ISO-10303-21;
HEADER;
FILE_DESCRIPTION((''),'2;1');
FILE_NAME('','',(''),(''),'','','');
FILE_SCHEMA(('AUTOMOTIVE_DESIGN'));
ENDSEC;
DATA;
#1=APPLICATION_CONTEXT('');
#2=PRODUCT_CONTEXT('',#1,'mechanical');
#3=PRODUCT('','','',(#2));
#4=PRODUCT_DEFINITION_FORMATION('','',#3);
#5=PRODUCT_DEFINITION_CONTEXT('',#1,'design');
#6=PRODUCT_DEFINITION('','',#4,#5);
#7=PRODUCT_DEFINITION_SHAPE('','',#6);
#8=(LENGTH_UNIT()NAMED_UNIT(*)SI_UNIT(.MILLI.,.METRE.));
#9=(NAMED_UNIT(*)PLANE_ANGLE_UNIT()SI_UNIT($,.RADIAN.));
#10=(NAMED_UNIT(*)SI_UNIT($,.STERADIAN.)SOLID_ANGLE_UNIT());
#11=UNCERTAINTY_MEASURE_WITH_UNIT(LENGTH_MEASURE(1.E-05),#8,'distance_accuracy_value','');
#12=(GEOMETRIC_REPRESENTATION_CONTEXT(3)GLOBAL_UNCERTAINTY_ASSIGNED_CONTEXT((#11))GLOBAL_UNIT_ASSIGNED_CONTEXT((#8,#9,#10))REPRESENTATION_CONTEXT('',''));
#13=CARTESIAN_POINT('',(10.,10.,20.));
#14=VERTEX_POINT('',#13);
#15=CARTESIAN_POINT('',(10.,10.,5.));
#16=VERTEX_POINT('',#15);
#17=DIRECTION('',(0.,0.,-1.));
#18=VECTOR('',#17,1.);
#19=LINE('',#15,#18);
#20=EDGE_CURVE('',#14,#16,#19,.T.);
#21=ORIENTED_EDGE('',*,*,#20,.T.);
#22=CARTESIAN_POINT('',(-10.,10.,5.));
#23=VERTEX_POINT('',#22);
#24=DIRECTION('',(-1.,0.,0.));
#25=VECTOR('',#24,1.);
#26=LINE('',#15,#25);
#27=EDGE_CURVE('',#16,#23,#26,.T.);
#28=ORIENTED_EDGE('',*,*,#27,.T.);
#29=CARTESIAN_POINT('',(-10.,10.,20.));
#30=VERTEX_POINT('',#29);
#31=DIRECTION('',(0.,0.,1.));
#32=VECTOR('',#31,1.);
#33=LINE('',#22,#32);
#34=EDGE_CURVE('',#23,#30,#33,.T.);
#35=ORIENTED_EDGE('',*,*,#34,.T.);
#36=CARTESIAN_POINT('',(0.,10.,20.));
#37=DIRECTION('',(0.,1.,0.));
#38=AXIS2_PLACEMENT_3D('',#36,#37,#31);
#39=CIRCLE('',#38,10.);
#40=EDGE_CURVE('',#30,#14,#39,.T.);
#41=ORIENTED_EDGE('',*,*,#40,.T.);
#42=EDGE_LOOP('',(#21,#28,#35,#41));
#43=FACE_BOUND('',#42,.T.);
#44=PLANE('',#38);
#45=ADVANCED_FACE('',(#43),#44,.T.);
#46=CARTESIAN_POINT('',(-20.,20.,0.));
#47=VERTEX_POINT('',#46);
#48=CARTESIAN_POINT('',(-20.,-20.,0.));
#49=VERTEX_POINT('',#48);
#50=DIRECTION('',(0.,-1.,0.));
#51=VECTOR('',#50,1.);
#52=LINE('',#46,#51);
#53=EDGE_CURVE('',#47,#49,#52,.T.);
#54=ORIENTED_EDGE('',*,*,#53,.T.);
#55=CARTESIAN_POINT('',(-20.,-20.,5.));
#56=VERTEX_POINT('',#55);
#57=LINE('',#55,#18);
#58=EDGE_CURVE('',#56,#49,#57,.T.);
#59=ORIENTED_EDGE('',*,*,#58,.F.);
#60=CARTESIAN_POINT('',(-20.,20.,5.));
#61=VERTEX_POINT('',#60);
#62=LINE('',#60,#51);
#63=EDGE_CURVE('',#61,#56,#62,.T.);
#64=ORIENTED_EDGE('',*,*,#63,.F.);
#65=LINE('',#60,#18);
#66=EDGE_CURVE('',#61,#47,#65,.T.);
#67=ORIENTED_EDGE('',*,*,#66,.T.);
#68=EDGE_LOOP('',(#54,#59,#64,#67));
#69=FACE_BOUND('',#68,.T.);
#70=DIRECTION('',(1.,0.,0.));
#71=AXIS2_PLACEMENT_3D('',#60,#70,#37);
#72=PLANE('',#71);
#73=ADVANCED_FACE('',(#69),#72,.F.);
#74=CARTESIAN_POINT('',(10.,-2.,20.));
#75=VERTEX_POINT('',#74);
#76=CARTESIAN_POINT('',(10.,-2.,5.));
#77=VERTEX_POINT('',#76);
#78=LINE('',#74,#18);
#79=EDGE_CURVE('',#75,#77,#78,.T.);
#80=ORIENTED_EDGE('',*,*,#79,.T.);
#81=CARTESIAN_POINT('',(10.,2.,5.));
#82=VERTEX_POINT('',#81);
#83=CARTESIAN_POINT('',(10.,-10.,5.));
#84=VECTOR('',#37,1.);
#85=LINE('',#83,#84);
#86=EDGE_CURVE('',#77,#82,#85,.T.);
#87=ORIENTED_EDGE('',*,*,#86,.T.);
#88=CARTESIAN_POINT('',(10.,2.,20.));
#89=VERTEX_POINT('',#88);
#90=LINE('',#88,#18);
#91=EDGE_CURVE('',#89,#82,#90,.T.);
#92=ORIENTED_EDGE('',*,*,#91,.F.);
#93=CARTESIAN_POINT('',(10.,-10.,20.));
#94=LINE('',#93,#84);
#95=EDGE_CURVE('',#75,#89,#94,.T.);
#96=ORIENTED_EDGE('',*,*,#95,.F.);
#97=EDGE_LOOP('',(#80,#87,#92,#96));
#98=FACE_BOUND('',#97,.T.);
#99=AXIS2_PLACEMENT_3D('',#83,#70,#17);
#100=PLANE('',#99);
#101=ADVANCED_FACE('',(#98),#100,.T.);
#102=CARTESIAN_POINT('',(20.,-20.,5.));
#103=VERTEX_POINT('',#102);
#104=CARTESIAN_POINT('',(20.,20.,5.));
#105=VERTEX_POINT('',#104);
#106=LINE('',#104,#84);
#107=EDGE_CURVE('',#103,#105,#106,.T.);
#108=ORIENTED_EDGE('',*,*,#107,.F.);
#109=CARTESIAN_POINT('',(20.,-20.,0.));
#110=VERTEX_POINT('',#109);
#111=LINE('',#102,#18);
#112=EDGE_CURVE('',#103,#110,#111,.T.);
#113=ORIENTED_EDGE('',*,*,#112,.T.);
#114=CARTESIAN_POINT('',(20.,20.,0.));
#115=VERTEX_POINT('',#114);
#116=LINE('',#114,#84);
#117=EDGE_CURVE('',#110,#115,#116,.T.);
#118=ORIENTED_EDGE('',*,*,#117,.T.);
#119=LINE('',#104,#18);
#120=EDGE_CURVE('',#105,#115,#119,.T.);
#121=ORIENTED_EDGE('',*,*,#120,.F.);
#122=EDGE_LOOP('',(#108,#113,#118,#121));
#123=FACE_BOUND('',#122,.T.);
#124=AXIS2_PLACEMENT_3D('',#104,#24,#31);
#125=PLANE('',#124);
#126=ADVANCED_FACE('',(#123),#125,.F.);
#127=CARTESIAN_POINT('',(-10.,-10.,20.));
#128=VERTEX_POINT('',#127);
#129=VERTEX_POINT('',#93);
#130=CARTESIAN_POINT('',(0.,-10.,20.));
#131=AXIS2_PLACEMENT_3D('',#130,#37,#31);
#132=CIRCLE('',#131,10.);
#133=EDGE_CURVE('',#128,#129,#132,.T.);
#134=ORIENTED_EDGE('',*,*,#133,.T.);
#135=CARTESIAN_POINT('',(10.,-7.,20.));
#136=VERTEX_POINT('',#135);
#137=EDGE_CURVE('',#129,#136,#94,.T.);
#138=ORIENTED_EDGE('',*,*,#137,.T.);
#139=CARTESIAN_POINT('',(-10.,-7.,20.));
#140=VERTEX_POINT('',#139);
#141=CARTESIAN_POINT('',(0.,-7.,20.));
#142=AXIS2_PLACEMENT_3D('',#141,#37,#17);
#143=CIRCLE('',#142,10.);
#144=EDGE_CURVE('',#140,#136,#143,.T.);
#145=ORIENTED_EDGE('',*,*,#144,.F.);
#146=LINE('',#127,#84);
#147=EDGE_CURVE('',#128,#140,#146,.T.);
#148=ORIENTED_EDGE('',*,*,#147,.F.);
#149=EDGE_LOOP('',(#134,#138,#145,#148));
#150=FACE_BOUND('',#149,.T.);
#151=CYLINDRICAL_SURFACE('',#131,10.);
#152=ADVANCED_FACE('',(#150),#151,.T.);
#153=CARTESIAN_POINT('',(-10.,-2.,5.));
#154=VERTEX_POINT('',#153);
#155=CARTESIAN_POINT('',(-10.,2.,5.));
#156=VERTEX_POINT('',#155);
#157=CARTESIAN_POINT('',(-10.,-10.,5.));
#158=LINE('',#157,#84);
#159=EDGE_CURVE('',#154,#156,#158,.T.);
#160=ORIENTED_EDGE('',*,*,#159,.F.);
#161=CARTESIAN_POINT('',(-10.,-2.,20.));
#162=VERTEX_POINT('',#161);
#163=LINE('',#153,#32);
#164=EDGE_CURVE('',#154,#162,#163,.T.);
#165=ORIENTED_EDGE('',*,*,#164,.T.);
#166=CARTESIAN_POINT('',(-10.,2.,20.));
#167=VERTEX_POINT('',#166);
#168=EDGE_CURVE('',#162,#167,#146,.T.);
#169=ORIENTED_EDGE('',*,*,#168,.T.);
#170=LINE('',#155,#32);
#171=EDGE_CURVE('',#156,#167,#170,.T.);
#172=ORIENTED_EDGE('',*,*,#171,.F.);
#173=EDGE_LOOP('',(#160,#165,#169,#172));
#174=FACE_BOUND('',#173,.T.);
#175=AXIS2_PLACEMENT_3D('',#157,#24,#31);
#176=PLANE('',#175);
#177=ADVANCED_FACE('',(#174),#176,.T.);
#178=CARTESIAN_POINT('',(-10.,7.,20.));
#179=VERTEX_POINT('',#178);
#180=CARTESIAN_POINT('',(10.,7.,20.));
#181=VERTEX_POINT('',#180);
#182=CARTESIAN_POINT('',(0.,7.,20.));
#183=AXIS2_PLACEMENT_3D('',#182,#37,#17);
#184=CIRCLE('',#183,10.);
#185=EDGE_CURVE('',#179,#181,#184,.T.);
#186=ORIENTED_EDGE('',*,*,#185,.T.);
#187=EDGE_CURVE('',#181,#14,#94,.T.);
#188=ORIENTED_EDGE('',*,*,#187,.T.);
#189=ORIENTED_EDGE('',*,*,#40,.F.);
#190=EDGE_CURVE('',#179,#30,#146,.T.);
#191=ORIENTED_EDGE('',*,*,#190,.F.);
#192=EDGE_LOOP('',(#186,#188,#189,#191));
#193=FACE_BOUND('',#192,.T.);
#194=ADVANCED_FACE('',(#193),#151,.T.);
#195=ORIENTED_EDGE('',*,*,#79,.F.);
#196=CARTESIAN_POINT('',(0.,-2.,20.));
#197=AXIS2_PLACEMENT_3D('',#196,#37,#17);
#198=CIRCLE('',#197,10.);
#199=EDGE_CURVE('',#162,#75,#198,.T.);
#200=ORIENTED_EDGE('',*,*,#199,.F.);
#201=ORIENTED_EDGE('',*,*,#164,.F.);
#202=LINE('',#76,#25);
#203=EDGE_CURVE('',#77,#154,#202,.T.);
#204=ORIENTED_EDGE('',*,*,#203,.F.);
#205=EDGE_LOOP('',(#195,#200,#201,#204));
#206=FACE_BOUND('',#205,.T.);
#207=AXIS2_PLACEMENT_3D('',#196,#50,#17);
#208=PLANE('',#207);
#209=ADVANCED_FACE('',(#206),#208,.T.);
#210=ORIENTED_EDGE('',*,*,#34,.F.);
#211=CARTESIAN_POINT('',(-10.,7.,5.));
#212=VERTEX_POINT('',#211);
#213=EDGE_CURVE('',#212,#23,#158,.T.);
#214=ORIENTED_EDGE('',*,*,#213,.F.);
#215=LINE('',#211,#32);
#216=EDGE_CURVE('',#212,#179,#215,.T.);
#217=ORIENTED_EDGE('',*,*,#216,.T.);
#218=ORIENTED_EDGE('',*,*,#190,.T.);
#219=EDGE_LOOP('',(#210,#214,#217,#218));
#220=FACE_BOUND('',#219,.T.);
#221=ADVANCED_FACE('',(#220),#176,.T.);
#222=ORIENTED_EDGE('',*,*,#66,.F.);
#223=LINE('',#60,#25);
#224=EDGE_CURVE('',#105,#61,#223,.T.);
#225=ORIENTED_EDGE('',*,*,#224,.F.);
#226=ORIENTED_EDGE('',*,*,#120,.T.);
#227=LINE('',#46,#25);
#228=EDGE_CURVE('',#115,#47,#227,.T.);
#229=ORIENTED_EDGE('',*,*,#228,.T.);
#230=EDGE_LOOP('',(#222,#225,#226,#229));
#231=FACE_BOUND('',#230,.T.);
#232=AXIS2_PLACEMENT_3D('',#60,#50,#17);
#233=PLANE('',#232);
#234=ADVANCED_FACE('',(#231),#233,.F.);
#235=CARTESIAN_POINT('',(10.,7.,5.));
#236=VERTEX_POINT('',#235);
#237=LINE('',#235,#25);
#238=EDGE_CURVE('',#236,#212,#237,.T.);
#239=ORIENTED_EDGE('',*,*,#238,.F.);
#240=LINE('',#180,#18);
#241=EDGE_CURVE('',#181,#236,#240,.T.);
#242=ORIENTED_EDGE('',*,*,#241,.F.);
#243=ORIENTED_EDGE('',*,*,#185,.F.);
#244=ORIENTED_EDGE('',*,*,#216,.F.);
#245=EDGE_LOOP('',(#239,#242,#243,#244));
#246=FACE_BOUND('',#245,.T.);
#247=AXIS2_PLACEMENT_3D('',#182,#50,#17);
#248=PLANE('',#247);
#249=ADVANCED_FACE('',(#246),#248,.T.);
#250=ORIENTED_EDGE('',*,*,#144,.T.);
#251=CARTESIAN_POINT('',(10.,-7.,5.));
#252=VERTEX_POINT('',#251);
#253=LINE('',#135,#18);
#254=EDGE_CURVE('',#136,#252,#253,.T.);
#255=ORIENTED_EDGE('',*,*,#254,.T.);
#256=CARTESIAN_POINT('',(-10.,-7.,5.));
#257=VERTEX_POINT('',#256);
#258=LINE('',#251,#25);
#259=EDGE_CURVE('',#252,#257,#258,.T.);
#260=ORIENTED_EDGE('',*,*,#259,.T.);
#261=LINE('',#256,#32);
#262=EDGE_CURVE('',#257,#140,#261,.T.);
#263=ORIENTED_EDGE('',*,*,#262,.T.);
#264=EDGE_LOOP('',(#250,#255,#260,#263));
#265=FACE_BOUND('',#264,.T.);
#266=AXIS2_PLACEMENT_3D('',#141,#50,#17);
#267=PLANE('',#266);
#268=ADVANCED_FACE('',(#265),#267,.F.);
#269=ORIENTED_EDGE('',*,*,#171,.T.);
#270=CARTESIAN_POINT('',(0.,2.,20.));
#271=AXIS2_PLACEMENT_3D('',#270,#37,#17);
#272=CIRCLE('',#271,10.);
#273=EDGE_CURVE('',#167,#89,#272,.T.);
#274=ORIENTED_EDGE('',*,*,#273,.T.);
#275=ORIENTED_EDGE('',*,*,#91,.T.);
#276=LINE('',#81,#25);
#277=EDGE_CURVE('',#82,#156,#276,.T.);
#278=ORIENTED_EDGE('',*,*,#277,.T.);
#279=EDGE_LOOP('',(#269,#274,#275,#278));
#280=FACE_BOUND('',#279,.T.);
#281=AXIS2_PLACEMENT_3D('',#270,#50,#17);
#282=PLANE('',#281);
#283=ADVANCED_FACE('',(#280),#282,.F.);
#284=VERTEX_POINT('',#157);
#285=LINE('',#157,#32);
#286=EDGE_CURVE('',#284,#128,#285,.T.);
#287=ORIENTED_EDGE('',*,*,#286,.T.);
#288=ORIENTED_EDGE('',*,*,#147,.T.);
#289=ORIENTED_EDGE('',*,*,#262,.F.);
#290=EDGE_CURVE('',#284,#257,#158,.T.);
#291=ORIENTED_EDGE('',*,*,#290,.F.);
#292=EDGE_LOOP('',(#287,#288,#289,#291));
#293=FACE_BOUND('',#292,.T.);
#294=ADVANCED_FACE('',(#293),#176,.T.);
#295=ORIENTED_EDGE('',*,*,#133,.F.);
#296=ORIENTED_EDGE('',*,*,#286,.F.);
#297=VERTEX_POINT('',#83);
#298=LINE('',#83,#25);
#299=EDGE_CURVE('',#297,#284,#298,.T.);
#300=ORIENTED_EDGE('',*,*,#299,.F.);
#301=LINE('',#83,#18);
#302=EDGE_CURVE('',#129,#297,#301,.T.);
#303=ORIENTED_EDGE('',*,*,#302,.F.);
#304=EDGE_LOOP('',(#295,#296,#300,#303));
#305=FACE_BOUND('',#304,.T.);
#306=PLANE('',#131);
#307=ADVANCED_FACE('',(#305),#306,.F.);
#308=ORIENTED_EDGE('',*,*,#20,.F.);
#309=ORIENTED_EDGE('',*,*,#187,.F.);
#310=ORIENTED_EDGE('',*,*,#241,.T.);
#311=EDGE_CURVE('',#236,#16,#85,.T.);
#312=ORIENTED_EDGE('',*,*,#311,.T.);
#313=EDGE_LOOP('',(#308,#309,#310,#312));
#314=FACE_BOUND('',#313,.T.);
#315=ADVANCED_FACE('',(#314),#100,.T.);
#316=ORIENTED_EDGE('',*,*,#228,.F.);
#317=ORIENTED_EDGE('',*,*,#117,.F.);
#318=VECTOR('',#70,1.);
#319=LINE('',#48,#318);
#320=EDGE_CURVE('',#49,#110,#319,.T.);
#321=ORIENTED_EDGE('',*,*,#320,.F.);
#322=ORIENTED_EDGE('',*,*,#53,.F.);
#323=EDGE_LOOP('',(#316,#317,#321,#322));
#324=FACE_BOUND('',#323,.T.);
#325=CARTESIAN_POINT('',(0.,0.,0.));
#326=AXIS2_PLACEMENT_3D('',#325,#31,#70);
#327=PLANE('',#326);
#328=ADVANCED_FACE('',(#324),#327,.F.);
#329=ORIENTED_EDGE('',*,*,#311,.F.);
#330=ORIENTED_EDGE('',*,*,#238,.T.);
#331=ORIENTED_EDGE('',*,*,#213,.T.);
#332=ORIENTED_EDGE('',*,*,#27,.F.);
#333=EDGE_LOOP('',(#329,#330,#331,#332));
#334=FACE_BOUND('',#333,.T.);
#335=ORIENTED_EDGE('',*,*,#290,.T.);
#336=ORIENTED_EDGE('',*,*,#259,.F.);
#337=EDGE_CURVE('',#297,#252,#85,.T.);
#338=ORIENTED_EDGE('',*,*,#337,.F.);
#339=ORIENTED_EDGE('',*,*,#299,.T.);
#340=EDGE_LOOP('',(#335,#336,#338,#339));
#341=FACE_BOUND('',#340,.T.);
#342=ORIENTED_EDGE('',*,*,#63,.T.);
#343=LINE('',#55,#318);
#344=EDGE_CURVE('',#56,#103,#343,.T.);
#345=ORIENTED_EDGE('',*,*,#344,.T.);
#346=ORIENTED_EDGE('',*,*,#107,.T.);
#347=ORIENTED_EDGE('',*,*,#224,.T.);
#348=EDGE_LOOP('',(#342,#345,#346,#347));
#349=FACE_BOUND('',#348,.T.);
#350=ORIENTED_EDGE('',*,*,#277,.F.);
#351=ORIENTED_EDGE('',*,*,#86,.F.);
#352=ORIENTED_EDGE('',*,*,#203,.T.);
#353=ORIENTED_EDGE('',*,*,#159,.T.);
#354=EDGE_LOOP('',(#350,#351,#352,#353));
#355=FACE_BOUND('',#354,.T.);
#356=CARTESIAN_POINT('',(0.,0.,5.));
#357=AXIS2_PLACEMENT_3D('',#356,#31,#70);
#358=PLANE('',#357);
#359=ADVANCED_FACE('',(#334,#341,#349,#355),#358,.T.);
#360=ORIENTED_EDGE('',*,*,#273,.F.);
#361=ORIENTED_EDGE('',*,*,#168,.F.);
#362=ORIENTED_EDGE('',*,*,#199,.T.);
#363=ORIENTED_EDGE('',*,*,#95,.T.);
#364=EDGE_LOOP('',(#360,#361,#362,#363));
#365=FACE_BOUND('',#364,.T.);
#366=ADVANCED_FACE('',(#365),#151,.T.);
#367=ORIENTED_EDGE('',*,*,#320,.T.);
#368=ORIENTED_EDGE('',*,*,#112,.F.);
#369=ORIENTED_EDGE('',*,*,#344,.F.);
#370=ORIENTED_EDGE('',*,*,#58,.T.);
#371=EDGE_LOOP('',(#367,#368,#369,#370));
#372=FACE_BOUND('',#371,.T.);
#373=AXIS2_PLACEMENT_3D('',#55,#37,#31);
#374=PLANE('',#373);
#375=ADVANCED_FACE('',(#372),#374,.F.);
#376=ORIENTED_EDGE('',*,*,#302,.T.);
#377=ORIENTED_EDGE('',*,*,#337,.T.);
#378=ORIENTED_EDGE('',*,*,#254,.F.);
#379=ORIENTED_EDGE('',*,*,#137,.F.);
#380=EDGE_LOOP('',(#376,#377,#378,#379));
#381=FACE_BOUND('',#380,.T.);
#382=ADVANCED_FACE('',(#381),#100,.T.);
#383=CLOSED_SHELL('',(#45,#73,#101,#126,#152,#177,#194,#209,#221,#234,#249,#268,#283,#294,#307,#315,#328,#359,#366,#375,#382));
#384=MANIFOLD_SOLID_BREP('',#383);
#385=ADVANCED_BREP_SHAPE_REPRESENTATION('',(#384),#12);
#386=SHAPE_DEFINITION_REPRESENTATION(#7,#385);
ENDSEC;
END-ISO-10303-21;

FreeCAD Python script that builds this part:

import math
import FreeCAD as App
import Part
import Sketcher

V = App.Vector
Q = App.Units.Quantity

doc = App.newDocument("Part")
body = doc.addObject("PartDesign::Body", "Body")

# Sketch on XY plane
sketch1 = body.newObject("Sketcher::SketchObject", "Sketch")
sketch1.AttachmentSupport = (doc.getObject("XY_Plane"), [""])
sketch1.MapMode = "FlatFace"
sketch1.addGeometry([
    Part.LineSegment(V(-20, 20, 0), V(-20, -20, 0)),
    Part.LineSegment(V(-20, -20, 0), V(20, -20, 0)),
    Part.LineSegment(V(20, -20, 0), V(20, 20, 0)),
    Part.LineSegment(V(20, 20, 0), V(-20, 20, 0)),
], False)
sketch1.addConstraint([
    Sketcher.Constraint("Coincident", 0, 2, 1, 1),
    Sketcher.Constraint("Coincident", 1, 2, 2, 1),
    Sketcher.Constraint("Coincident", 2, 2, 3, 1),
    Sketcher.Constraint("Coincident", 3, 2, 0, 1),
    Sketcher.Constraint("Vertical", 0),
    Sketcher.Constraint("Horizontal", 1),
    Sketcher.Constraint("Vertical", 2),
    Sketcher.Constraint("Horizontal", 3),
    Sketcher.Constraint("Symmetric", 0, 2, 2, 2, -1, 1),
    Sketcher.Constraint("Equal", 3, 0),
    Sketcher.Constraint("DistanceX", 1, 1, 1, 2, Q("40 mm")),
])
pad1 = body.newObject("PartDesign::Pad", "Pad")
pad1.Profile = sketch1
pad1.Length = 5

# Sketch on XZ plane
sketch2 = body.newObject("Sketcher::SketchObject", "Sketch001")
sketch2.AttachmentSupport = (doc.getObject("XZ_Plane"), [""])
sketch2.MapMode = "FlatFace"
sketch2.AttachmentOffset = App.Placement(V(0, 0, -10), App.Rotation())
sketch2.addGeometry([
    Part.LineSegment(V(10, 5, 0), V(-10, 5, 0)),
    Part.LineSegment(V(-10, 5, 0), V(-10, 20, 0)),
    Part.ArcOfCircle(Part.Circle(V(0, 20, 0), V(0, 0, 1), 10), math.radians(0), math.radians(180)),
    Part.LineSegment(V(10, 20, 0), V(10, 5, 0)),
], False)
sketch2.addConstraint([
    Sketcher.Constraint("Coincident", 0, 2, 1, 1),
    Sketcher.Constraint("Tangent", 1, 2, 2, 2),
    Sketcher.Constraint("Tangent", 2, 1, 3, 1),
    Sketcher.Constraint("Coincident", 3, 2, 0, 1),
    Sketcher.Constraint("Horizontal", 0),
    Sketcher.Constraint("Vertical", 1),
    Sketcher.Constraint("Vertical", 3),
    Sketcher.Constraint("PointOnObject", 2, 3, -2),
    Sketcher.Constraint("Radius", 2, Q("10 mm")),
    Sketcher.Constraint("DistanceY", 1, 1, 1, 2, Q("15 mm")),
    Sketcher.Constraint("DistanceY", -1, 1, 2, 3, Q("20 mm")),
])
pad2 = body.newObject("PartDesign::Pad", "Pad001")
pad2.Profile = sketch2
pad2.Length = 20

# Sketch on XZ plane
sketch3 = body.newObject("Sketcher::SketchObject", "Sketch002")
sketch3.AttachmentSupport = (doc.getObject("XZ_Plane"), [""])
sketch3.MapMode = "FlatFace"
sketch3.AttachmentOffset = App.Placement(V(0, 0, -7), App.Rotation())
sketch3.addGeometry([
    Part.LineSegment(V(10, 20, 0), V(10, 5, 0)),
    Part.LineSegment(V(10, 5, 0), V(-10, 5, 0)),
    Part.LineSegment(V(-10, 5, 0), V(-10, 20, 0)),
    Part.ArcOfCircle(Part.Circle(V(0, 20, 0), V(0, 0, 1), 10), math.radians(0), math.radians(180)),
], False)
sketch3.addConstraint([
    Sketcher.Constraint("Coincident", 0, 2, 1, 1),
    Sketcher.Constraint("Coincident", 1, 2, 2, 1),
    Sketcher.Constraint("Tangent", 2, 2, 3, 2),
    Sketcher.Constraint("Tangent", 3, 1, 0, 1),
    Sketcher.Constraint("Vertical", 0),
    Sketcher.Constraint("Horizontal", 1),
    Sketcher.Constraint("Vertical", 2),
    Sketcher.Constraint("PointOnObject", 3, 3, -2),
    Sketcher.Constraint("Radius", 3, Q("10 mm")),
    Sketcher.Constraint("DistanceY", 0, 2, 0, 1, Q("15 mm")),
    Sketcher.Constraint("DistanceY", -1, 1, 3, 3, Q("20 mm")),
])
pocket1 = body.newObject("PartDesign::Pocket", "Pocket")
pocket1.Profile = sketch3
pocket1.Length = 5
pocket1.Reversed = True

# Sketch on XZ plane
sketch4 = body.newObject("Sketcher::SketchObject", "Sketch003")
sketch4.AttachmentSupport = (doc.getObject("XZ_Plane"), [""])
sketch4.MapMode = "FlatFace"
sketch4.AttachmentOffset = App.Placement(V(0, 0, 2), App.Rotation())
sketch4.addGeometry([
    Part.LineSegment(V(10, 20, 0), V(10, 5, 0)),
    Part.LineSegment(V(10, 5, 0), V(-10, 5, 0)),
    Part.LineSegment(V(-10, 5, 0), V(-10, 20, 0)),
    Part.ArcOfCircle(Part.Circle(V(0, 20, 0), V(0, 0, 1), 10), math.radians(0), math.radians(180)),
], False)
sketch4.addConstraint([
    Sketcher.Constraint("Coincident", 0, 2, 1, 1),
    Sketcher.Constraint("Coincident", 1, 2, 2, 1),
    Sketcher.Constraint("Tangent", 2, 2, 3, 2),
    Sketcher.Constraint("Tangent", 3, 1, 0, 1),
    Sketcher.Constraint("Vertical", 0),
    Sketcher.Constraint("Horizontal", 1),
    Sketcher.Constraint("Vertical", 2),
    Sketcher.Constraint("PointOnObject", 3, 3, -2),
    Sketcher.Constraint("Radius", 3, Q("10 mm")),
    Sketcher.Constraint("DistanceY", 0, 2, 0, 1, Q("15 mm")),
    Sketcher.Constraint("DistanceY", -1, 1, 3, 3, Q("20 mm")),
])
pocket2 = body.newObject("PartDesign::Pocket", "Pocket001")
pocket2.Profile = sketch4
pocket2.Length = 5
pocket2.Reversed = True

doc.recompute()
